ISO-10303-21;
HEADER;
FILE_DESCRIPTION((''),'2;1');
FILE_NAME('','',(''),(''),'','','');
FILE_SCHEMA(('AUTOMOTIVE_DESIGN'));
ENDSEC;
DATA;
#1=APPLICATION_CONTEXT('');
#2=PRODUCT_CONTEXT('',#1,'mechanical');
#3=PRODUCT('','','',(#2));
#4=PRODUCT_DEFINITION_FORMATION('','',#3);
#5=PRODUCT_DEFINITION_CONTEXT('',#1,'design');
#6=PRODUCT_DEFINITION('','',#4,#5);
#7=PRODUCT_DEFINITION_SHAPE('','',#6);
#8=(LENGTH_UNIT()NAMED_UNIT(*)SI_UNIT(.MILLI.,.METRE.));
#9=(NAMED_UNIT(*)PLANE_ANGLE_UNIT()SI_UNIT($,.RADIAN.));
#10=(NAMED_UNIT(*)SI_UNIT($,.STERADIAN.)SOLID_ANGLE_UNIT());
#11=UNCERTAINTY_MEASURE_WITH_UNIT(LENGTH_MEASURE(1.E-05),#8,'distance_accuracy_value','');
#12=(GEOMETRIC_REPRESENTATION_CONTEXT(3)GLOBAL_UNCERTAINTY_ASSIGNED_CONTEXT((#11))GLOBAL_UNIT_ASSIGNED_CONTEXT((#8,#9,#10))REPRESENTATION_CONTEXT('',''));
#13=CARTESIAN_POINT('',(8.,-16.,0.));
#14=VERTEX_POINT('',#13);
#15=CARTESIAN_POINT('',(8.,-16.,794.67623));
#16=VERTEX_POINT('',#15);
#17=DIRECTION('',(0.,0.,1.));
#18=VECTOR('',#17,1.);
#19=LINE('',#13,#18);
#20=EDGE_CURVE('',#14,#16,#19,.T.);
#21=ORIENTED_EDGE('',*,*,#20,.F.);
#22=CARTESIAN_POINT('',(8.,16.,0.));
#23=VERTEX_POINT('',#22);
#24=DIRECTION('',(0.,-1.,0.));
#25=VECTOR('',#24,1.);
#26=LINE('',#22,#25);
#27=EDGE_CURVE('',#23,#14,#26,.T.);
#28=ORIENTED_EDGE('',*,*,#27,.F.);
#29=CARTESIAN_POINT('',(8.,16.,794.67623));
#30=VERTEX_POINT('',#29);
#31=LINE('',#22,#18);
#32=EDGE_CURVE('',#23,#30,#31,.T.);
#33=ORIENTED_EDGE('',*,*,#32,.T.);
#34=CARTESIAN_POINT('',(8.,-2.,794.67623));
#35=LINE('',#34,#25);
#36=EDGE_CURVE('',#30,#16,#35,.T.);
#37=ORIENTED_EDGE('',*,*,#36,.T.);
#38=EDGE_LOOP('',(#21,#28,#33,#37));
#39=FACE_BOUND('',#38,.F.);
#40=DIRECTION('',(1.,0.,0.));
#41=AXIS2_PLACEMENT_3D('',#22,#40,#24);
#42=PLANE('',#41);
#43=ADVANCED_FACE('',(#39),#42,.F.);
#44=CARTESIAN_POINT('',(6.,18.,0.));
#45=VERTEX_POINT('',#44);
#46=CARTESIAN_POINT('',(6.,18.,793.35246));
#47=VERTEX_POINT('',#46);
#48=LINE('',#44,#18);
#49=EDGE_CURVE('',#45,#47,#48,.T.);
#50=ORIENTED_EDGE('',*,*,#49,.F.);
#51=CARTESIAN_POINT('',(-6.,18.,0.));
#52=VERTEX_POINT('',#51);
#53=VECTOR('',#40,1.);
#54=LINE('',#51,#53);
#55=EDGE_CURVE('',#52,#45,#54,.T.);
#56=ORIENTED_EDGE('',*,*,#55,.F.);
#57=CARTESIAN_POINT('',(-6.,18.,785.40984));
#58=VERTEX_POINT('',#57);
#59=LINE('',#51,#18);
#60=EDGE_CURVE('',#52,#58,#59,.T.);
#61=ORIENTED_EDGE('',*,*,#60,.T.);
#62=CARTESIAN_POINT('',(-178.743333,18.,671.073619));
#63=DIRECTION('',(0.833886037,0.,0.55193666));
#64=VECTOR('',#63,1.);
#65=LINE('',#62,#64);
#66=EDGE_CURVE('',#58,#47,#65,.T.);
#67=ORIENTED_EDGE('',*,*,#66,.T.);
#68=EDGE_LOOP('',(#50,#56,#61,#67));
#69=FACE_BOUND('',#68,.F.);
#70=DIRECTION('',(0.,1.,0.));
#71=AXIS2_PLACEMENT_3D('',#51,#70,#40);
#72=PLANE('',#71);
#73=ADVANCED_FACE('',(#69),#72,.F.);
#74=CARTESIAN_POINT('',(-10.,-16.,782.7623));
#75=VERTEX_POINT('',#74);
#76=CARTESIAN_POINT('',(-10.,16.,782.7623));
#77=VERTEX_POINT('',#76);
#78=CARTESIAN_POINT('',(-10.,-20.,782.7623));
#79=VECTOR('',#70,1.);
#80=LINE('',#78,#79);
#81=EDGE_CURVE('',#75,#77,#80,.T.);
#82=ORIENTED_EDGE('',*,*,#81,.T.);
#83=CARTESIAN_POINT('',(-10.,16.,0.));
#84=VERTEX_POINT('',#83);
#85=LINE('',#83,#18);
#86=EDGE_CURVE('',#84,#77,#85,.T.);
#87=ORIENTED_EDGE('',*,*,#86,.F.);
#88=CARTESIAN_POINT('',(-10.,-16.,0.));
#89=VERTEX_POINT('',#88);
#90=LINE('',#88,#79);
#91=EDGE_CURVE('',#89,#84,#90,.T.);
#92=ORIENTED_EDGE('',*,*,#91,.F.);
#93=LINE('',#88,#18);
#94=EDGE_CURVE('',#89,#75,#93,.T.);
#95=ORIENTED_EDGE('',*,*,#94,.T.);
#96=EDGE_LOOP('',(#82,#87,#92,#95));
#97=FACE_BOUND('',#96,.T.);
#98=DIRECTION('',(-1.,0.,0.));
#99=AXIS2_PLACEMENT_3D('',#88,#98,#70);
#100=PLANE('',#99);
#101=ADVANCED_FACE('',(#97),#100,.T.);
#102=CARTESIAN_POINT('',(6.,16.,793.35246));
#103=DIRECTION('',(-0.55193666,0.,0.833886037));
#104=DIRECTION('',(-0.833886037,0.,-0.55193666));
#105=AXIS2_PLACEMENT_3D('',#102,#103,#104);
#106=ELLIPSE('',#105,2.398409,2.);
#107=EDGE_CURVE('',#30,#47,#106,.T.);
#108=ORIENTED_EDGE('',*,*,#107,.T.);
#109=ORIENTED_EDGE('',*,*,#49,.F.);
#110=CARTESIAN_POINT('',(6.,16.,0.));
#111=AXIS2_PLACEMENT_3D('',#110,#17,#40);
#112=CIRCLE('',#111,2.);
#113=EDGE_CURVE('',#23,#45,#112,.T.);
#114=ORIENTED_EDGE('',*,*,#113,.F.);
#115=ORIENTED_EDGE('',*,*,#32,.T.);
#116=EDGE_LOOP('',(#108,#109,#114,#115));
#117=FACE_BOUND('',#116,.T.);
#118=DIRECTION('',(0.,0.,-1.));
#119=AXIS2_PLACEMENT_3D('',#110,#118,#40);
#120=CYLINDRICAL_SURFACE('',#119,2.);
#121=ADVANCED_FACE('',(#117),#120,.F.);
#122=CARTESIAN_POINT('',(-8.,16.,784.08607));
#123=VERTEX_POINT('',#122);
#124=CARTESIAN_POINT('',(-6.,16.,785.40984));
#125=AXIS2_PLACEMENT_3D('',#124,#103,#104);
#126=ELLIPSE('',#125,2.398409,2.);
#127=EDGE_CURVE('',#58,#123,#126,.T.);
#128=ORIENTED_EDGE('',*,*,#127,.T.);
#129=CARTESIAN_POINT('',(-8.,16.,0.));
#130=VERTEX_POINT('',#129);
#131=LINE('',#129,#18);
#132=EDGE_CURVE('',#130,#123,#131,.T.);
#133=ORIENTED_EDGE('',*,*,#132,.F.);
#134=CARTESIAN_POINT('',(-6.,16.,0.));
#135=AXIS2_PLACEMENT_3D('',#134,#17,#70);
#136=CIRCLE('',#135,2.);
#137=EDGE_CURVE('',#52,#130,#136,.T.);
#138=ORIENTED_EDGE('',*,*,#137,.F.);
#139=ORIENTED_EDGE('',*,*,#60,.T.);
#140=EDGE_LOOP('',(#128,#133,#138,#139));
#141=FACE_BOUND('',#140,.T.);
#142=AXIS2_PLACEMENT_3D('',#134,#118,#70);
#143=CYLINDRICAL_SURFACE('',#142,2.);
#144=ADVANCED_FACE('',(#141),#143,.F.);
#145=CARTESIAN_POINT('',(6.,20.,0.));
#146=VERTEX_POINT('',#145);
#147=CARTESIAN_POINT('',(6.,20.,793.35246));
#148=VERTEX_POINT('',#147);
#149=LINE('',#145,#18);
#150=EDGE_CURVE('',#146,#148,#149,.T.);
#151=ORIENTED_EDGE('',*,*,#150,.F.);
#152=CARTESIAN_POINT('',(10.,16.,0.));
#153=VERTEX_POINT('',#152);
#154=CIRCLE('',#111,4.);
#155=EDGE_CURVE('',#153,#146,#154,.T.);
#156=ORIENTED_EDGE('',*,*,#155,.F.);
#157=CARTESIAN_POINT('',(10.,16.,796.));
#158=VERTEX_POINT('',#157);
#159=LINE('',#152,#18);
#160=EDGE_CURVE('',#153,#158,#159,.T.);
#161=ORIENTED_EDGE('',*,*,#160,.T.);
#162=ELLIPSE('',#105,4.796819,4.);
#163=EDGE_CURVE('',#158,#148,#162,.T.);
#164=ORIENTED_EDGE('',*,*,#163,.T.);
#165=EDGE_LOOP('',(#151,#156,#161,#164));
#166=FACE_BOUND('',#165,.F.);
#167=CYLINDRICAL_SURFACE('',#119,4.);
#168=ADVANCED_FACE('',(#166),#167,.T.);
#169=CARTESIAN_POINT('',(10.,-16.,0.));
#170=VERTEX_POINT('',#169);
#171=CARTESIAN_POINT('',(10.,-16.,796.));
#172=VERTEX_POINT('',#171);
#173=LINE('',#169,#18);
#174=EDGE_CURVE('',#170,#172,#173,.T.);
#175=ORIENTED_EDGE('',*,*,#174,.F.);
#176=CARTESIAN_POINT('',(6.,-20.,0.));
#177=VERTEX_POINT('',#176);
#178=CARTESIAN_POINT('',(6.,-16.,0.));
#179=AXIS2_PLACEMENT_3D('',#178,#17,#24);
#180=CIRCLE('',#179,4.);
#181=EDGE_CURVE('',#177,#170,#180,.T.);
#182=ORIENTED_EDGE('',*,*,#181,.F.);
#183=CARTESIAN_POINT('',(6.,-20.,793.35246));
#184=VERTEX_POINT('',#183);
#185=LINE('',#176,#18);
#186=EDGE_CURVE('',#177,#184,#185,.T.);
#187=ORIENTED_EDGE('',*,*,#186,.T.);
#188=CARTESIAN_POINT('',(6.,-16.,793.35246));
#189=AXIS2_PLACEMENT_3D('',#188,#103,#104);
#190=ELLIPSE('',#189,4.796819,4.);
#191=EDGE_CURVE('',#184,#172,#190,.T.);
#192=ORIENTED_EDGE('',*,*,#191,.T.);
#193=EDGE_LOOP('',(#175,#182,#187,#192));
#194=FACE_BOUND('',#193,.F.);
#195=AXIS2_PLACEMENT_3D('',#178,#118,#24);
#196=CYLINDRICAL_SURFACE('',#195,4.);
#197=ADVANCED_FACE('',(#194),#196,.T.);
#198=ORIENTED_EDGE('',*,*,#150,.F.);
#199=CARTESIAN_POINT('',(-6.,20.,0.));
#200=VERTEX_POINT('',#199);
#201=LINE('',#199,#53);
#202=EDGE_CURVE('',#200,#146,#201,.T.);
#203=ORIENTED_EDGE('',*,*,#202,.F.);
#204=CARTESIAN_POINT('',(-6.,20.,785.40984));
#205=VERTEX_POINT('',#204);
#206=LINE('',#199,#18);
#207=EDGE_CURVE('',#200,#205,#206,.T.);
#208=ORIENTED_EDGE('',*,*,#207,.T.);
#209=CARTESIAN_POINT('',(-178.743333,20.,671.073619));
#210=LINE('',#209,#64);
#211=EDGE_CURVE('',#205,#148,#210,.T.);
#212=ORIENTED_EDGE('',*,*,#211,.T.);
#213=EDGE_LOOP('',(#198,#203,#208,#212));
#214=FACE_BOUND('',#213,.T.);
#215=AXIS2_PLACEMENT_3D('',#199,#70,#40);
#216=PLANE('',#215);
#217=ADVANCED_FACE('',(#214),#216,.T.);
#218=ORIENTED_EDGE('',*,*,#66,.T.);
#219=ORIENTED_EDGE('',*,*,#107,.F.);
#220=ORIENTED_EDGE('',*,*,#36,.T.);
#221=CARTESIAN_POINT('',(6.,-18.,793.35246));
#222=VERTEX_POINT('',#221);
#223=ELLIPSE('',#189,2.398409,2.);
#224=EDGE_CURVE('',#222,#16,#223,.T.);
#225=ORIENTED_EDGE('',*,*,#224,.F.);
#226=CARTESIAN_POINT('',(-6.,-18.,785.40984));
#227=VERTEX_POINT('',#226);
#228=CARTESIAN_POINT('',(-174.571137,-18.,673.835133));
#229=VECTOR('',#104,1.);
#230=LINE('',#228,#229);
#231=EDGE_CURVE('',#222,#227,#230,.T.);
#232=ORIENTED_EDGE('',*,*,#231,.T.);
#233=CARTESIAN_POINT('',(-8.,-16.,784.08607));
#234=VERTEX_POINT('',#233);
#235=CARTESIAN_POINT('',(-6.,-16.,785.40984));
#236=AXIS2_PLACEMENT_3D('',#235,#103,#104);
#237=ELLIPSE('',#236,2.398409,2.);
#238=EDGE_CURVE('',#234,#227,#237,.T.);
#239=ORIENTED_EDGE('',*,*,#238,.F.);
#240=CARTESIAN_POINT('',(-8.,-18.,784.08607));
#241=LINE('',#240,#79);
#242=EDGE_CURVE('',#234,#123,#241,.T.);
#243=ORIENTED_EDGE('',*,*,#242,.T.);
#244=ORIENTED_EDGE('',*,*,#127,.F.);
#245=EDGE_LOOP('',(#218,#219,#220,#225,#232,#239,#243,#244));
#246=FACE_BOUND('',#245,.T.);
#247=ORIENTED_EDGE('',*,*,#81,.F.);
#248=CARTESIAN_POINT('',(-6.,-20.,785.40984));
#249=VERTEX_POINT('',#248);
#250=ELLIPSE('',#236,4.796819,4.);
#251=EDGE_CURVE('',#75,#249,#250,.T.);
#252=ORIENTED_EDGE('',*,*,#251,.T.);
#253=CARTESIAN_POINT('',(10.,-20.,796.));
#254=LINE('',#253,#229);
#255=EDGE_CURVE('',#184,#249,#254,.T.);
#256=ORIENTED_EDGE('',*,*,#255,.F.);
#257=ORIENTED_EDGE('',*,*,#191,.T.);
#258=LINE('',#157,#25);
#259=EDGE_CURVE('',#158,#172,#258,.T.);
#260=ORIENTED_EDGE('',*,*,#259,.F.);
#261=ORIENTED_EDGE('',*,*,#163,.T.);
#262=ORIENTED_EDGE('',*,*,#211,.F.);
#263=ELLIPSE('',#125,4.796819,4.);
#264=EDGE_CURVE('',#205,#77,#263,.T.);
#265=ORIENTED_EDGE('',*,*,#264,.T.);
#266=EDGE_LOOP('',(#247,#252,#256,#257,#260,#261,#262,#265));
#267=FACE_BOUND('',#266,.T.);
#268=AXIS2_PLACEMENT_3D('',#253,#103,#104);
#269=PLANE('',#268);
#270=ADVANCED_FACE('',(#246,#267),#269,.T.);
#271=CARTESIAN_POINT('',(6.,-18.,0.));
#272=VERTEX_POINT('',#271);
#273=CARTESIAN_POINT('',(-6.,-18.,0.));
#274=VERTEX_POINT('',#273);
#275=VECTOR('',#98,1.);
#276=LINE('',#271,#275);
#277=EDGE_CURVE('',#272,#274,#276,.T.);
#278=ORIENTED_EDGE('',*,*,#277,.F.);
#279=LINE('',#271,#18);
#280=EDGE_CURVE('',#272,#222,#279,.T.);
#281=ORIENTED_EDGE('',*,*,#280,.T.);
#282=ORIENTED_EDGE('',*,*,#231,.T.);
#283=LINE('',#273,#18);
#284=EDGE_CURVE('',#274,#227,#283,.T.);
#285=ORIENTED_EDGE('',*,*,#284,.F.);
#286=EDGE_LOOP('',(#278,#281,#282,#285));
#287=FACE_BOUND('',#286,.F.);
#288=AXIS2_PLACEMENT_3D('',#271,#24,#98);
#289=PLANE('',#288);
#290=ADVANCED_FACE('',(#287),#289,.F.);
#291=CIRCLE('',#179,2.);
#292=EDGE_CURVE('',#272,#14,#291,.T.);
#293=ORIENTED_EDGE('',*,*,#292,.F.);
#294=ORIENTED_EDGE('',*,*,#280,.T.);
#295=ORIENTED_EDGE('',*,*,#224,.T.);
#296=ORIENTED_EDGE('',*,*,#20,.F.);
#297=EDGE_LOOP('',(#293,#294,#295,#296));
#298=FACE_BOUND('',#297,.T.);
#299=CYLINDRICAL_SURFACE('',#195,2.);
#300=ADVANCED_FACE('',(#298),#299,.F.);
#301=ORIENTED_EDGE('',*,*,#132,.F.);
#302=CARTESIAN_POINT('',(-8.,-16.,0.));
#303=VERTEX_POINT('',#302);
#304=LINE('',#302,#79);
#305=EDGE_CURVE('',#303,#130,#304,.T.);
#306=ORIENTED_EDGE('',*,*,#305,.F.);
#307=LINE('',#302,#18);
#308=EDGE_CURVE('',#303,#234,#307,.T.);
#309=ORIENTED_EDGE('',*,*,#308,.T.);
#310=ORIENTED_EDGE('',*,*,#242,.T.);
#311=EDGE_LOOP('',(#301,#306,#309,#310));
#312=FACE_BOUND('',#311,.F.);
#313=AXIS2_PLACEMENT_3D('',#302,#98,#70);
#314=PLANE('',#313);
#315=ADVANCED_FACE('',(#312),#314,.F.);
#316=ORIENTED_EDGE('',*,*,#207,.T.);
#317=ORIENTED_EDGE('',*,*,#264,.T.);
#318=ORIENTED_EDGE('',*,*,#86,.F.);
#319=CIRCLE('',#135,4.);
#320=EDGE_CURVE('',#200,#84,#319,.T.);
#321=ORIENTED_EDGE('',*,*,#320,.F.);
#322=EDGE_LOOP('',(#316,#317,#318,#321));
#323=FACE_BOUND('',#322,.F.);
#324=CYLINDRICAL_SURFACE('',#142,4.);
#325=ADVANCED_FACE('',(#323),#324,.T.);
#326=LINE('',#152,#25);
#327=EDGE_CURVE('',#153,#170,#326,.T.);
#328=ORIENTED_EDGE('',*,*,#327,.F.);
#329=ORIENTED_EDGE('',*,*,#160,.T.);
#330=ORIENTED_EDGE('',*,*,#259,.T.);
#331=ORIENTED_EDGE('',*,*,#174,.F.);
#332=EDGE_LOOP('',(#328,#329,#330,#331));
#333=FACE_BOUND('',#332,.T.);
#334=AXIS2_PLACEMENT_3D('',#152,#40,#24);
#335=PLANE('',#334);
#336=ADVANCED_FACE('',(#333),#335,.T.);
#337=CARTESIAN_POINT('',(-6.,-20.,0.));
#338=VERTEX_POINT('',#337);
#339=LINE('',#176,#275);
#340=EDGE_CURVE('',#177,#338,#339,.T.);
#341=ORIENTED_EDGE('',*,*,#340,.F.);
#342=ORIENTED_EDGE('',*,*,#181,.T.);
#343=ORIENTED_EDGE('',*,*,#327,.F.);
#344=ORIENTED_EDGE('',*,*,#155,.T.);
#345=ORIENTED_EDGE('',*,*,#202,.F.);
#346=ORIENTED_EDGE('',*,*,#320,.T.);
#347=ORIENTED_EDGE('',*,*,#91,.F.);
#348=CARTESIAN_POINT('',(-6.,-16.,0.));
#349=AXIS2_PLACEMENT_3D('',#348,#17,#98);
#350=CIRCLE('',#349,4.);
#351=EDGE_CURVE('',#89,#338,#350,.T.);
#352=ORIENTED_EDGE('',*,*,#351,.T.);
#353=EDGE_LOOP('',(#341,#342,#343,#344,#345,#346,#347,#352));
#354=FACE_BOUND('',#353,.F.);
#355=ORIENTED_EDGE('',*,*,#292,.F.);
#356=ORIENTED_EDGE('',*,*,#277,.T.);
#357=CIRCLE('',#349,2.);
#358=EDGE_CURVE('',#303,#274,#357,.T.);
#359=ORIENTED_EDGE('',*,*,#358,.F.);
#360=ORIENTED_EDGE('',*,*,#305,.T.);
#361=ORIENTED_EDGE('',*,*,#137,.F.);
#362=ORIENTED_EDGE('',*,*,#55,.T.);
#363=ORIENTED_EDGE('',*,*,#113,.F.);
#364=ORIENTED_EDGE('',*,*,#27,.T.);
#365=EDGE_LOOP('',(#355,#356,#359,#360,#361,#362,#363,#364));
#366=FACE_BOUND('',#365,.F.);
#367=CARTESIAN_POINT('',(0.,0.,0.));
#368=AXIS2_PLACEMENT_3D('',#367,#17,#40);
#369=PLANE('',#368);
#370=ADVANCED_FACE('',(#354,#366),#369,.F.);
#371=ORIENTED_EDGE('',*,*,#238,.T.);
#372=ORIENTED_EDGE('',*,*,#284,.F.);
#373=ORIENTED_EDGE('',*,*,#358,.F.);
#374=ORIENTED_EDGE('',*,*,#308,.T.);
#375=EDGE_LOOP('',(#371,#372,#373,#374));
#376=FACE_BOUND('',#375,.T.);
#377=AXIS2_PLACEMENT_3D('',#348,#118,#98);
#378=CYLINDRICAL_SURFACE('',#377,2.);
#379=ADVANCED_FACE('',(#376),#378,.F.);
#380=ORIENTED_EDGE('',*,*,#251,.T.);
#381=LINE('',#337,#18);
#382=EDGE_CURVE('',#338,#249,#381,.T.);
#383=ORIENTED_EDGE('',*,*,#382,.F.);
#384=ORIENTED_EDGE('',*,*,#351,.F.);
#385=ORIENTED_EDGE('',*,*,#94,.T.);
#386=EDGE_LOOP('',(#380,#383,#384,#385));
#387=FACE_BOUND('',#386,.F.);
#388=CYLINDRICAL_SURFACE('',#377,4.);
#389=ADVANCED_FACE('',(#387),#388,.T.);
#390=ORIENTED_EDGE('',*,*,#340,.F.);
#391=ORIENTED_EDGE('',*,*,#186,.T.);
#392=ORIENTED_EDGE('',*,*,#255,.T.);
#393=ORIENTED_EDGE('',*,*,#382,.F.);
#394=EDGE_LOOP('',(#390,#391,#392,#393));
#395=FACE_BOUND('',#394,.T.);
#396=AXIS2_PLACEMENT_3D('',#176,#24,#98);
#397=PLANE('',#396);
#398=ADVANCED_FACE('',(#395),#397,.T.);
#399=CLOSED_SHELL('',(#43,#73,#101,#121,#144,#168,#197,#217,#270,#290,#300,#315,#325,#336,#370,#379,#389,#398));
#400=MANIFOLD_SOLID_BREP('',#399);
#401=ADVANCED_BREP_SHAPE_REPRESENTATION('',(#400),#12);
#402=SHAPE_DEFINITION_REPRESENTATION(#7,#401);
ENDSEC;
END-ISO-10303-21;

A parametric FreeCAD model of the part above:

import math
import FreeCAD as App
import Part
import Sketcher
from FreeCAD import Vector
Q = App.Units.Quantity


def add_polygon(sketch, points):
    """Adds a closed chain of lines whose ends are joined by coincident constraints."""
    first, n = sketch.GeometryCount, len(points)
    for a, b in zip(points, points[1:] + points[:1]):
        sketch.addGeometry(Part.LineSegment(App.Vector(*a, 0), App.Vector(*b, 0)), False)
    for i in range(n):
        sketch.addConstraint(Sketcher.Constraint("Coincident", first + i, 2, first + (i + 1) % n, 1))

doc = App.newDocument("Part")
body = doc.addObject("PartDesign::Body", "Body")

sketch1 = body.newObject("Sketcher::SketchObject", "Sketch")
sketch1.AttachmentSupport = (doc.getObject("XY_Plane"), [""])
sketch1.MapMode = "FlatFace"
sketch1.addGeometry([
    Part.LineSegment(Vector(-10, 16, 0), Vector(-10, -16, 0)),
    Part.ArcOfCircle(Part.Circle(Vector(-6, -16, 0), Vector(0, 0, 1), 4), math.radians(180), math.radians(270)),
    Part.LineSegment(Vector(-6, -20, 0), Vector(6, -20, 0)),
    Part.ArcOfCircle(Part.Circle(Vector(6, -16, 0), Vector(0, 0, 1), 4), math.radians(-90), math.radians(0)),
    Part.LineSegment(Vector(10, -16, 0), Vector(10, 16, 0)),
    Part.ArcOfCircle(Part.Circle(Vector(6, 16, 0), Vector(0, 0, 1), 4), math.radians(0), math.radians(90)),
    Part.LineSegment(Vector(6, 20, 0), Vector(-6, 20, 0)),
    Part.ArcOfCircle(Part.Circle(Vector(-6, 16, 0), Vector(0, 0, 1), 4), math.radians(90), math.radians(180)),
    Part.ArcOfCircle(Part.Circle(Vector(-6, 16, 0), Vector(0, 0, 1), 2), math.radians(90), math.radians(180)),
    Part.LineSegment(Vector(-6, 18, 0), Vector(6, 18, 0)),
    Part.ArcOfCircle(Part.Circle(Vector(6, 16, 0), Vector(0, 0, 1), 2), math.radians(0), math.radians(90)),
    Part.LineSegment(Vector(8, 16, 0), Vector(8, -16, 0)),
    Part.ArcOfCircle(Part.Circle(Vector(6, -16, 0), Vector(0, 0, 1), 2), math.radians(-90), math.radians(0)),
    Part.LineSegment(Vector(6, -18, 0), Vector(-6, -18, 0)),
    Part.ArcOfCircle(Part.Circle(Vector(-6, -16, 0), Vector(0, 0, 1), 2), math.radians(180), math.radians(270)),
    Part.LineSegment(Vector(-8, -16, 0), Vector(-8, 16, 0)),
], False)
sketch1.addConstraint([
    Sketcher.Constraint("Tangent", 0, 2, 1, 1),
    Sketcher.Constraint("Tangent", 1, 2, 2, 1),
    Sketcher.Constraint("Tangent", 2, 2, 3, 1),
    Sketcher.Constraint("Tangent", 3, 2, 4, 1),
    Sketcher.Constraint("Tangent", 4, 2, 5, 1),
    Sketcher.Constraint("Tangent", 5, 2, 6, 1),
    Sketcher.Constraint("Tangent", 6, 2, 7, 1),
    Sketcher.Constraint("Tangent", 7, 2, 0, 1),
    Sketcher.Constraint("Tangent", 8, 1, 9, 1),
    Sketcher.Constraint("Tangent", 9, 2, 10, 2),
    Sketcher.Constraint("Tangent", 10, 1, 11, 1),
    Sketcher.Constraint("Tangent", 11, 2, 12, 2),
    Sketcher.Constraint("Tangent", 12, 1, 13, 1),
    Sketcher.Constraint("Tangent", 13, 2, 14, 2),
    Sketcher.Constraint("Tangent", 14, 1, 15, 1),
    Sketcher.Constraint("Tangent", 15, 2, 8, 2),
    Sketcher.Constraint("Vertical", 0),
    Sketcher.Constraint("Horizontal", 2),
    Sketcher.Constraint("Vertical", 4),
    Sketcher.Constraint("Horizontal", 6),
    Sketcher.Constraint("Horizontal", 9),
    Sketcher.Constraint("Vertical", 11),
    Sketcher.Constraint("Horizontal", 13),
    Sketcher.Constraint("Vertical", 15),
    Sketcher.Constraint("Coincident", 8, 3, 7, 3),
    Sketcher.Constraint("Coincident", 10, 3, 5, 3),
    Sketcher.Constraint("Coincident", 12, 3, 3, 3),
    Sketcher.Constraint("Equal", 1, 3),
    Sketcher.Constraint("Equal", 3, 5),
    Sketcher.Constraint("Equal", 5, 7),
    Sketcher.Constraint("Equal", 12, 14),
    Sketcher.Constraint("Symmetric", 1, 3, 5, 3, -1, 1),
    Sketcher.Constraint("Radius", 1, 4.0),
    Sketcher.Constraint("Radius", 8, 2.0),
    Sketcher.Constraint("DistanceX", 0, 2, -1, 1, 10.0),
    Sketcher.Constraint("DistanceY", 1, 2, -1, 1, 20.0),
])
pad1 = body.newObject("PartDesign::Pad", "Pad")
pad1.Profile = sketch1
pad1.Length = 796

sketch2 = body.newObject("Sketcher::SketchObject", "Sketch001")
sketch2.AttachmentSupport = (doc.getObject("XZ_Plane"), [""])
sketch2.MapMode = "FlatFace"
sketch2.AttachmentOffset = App.Placement(Vector(0, 0, 20), App.Rotation())
add_polygon(sketch2, [(-10, 796), (-10, 783), (10, 796)])
sketch2.addConstraint([
    Sketcher.Constraint("Vertical", 0),
    Sketcher.Constraint("Horizontal", 2),
    Sketcher.Constraint("Angle", 1, Q("33.5 deg")),
    Sketcher.Constraint("DistanceX", 2, 2, 2, 1, 20.0),
    Sketcher.Constraint("DistanceX", 0, 2, -1, 1, 10.0),
    Sketcher.Constraint("DistanceY", -1, 1, 1, 2, 796.0),
])
pocket1 = body.newObject("PartDesign::Pocket", "Pocket")
pocket1.Profile = sketch2
pocket1.Type = "ThroughAll"

doc.recompute()
